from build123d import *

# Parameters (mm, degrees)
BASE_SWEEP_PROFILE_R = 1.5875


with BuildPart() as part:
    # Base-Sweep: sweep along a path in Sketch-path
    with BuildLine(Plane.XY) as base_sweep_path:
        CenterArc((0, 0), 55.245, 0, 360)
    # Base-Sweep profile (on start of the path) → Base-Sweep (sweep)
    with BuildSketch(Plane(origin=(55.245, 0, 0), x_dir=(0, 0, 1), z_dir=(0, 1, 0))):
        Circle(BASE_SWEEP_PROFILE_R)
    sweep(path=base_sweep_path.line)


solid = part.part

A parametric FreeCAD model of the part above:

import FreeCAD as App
import Part
import Sketcher

V = App.Vector
Q = App.Units.Quantity

doc = App.newDocument("Part")
body = doc.addObject("PartDesign::Body", "Body")

# Sketch on XZ plane
sketch1 = doc.addObject("Sketcher::SketchObject", "Sketch")
body.addObject(sketch1)
sketch1.AttachmentSupport = (doc.XZ_Plane, [""])
sketch1.MapMode = "FlatFace"
sketch1.addGeometry(Part.Circle(V(55.245, 0, 0), V(0, 0, 1), 1.5875), False)
sketch1.addConstraint([
    Sketcher.Constraint("PointOnObject", 0, 3, -1),
    Sketcher.Constraint("Diameter", 0, Q("0.125 in")),
    Sketcher.Constraint("DistanceX", -1, 1, 0, 3, Q("2.175 in")),
])

# Sketch on XY plane
sketch2 = doc.addObject("Sketcher::SketchObject", "Sketch001")
body.addObject(sketch2)
sketch2.AttachmentSupport = (doc.XY_Plane, [""])
sketch2.MapMode = "FlatFace"
sketch2.addGeometry(Part.Circle(V(0, 0, 0), V(0, 0, 1), 55.245), False)
sketch2.addConstraint([
    Sketcher.Constraint("Coincident", 0, 3, -1, 1),
    Sketcher.Constraint("Diameter", 0, Q("4.35 in")),
])
doc.recompute()

additivepipe = doc.addObject("PartDesign::AdditivePipe", "AdditivePipe")
body.addObject(additivepipe)
additivepipe.Profile = sketch1
additivepipe.Spine = (sketch2, ["Edge1"])

doc.recompute()
